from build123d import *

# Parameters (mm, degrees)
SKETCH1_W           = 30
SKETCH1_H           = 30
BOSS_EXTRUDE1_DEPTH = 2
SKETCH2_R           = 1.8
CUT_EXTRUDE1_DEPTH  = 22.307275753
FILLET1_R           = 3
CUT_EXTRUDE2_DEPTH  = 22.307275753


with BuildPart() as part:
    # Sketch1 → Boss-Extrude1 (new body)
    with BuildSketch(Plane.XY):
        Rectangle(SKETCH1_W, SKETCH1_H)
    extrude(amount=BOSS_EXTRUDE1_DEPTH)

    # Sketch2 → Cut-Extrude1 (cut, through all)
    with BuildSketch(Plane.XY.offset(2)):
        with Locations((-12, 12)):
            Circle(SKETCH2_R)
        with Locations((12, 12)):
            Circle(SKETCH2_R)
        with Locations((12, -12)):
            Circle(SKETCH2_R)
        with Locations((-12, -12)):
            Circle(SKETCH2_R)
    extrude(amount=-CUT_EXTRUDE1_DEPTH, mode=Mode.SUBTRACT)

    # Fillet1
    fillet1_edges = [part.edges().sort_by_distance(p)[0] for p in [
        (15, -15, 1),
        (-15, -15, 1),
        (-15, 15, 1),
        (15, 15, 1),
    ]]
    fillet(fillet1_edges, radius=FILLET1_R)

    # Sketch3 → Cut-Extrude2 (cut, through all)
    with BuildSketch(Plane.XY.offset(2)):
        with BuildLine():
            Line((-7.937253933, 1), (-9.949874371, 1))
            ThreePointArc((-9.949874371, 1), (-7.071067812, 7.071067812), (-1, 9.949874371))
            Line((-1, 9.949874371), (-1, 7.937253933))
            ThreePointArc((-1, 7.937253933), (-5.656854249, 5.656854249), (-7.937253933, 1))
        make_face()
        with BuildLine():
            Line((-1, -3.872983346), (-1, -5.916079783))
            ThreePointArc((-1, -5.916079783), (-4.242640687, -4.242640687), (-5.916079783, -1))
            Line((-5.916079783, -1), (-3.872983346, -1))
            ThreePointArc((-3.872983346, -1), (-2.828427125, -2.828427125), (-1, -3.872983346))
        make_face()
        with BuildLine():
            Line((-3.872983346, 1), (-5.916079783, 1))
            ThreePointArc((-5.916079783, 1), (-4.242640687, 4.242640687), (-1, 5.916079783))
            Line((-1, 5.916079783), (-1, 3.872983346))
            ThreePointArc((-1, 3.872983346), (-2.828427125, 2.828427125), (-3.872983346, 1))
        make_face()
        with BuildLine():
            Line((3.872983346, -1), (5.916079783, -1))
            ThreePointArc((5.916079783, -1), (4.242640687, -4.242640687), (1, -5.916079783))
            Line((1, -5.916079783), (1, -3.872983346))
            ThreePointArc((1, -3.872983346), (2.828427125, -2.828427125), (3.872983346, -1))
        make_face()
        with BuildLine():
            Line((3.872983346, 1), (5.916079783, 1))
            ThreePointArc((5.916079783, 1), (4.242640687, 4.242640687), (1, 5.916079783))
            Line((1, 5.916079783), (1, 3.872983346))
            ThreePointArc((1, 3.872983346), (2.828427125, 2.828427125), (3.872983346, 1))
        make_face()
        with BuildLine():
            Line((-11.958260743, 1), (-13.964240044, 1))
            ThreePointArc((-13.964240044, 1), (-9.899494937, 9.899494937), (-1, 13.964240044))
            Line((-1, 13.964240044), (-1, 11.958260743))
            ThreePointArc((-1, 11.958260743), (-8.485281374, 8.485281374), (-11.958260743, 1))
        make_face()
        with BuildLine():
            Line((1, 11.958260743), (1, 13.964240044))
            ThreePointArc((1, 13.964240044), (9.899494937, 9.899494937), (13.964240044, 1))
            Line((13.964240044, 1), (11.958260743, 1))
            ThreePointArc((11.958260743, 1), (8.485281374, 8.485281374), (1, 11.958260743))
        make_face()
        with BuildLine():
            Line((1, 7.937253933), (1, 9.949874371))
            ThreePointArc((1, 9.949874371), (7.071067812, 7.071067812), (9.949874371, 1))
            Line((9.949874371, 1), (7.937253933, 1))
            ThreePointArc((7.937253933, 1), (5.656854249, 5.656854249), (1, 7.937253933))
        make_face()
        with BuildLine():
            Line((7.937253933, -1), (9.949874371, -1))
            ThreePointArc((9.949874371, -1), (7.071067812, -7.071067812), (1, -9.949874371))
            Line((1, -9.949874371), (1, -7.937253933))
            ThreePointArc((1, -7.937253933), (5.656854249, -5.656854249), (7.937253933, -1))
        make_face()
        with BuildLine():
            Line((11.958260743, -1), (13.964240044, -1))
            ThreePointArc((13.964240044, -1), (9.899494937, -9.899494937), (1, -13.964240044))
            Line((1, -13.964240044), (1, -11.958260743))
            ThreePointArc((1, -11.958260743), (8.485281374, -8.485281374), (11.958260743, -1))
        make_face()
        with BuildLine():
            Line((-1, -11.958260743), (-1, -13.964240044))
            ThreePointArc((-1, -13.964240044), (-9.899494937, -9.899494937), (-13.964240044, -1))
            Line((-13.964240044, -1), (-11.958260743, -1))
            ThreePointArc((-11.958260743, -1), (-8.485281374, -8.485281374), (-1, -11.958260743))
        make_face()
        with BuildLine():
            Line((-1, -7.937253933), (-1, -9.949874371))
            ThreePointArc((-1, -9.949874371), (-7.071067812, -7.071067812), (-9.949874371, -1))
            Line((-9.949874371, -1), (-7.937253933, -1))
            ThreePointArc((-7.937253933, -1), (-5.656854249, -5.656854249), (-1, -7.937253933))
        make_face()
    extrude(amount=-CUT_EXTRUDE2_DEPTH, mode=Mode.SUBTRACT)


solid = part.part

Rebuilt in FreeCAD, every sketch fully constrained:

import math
import FreeCAD as App
import Part
import Sketcher
Q = App.Units.Quantity


def edges_at(feature, points):
    """Names of the edges that pass closest to the given points."""
    edges = feature.Shape.Edges
    near = lambda p: min(range(len(edges)), key=lambda i: edges[i].distToShape(Part.Vertex(*p))[0])
    return sorted({f"Edge{near(p) + 1}" for p in points})

doc = App.newDocument("Part")
body = doc.addObject("PartDesign::Body", "Body")

# Sketch on XY plane
sketch1 = body.newObject("Sketcher::SketchObject", "Sketch")
sketch1.AttachmentSupport = (doc.getObject("XY_Plane"), [""])
sketch1.MapMode = "FlatFace"
sketch1.addGeometry(Part.LineSegment(App.Vector(-15, 15, 0), App.Vector(-15, -15, 0)), False)
sketch1.addGeometry(Part.LineSegment(App.Vector(-15, -15, 0), App.Vector(15, -15, 0)), False)
sketch1.addGeometry(Part.LineSegment(App.Vector(15, -15, 0), App.Vector(15, 15, 0)), False)
sketch1.addGeometry(Part.LineSegment(App.Vector(15, 15, 0), App.Vector(-15, 15, 0)), False)
sketch1.addConstraint(Sketcher.Constraint("Coincident", 0, 2, 1, 1))
sketch1.addConstraint(Sketcher.Constraint("Coincident", 1, 2, 2, 1))
sketch1.addConstraint(Sketcher.Constraint("Coincident", 2, 2, 3, 1))
sketch1.addConstraint(Sketcher.Constraint("Coincident", 3, 2, 0, 1))
sketch1.addConstraint(Sketcher.Constraint("Vertical", 0))
sketch1.addConstraint(Sketcher.Constraint("Horizontal", 1))
sketch1.addConstraint(Sketcher.Constraint("Vertical", 2))
sketch1.addConstraint(Sketcher.Constraint("Horizontal", 3))
sketch1.addConstraint(Sketcher.Constraint("Symmetric", 0, 2, 2, 2, -1, 1))
sketch1.addConstraint(Sketcher.Constraint("Equal", 3, 0))
sketch1.addConstraint(Sketcher.Constraint("DistanceX", 1, 1, 1, 2, Q("30 mm")))
pad1 = body.newObject("PartDesign::Pad", "Pad")
pad1.Profile = sketch1
pad1.Length = 2

# Sketch on XY plane
sketch2 = body.newObject("Sketcher::SketchObject", "Sketch001")
sketch2.AttachmentSupport = (doc.getObject("XY_Plane"), [""])
sketch2.MapMode = "FlatFace"
sketch2.AttachmentOffset = App.Placement(App.Vector(0, 0, 2), App.Rotation())
sketch2.addGeometry(Part.Circle(App.Vector(-12, 12, 0), App.Vector(0, 0, 1), 1.8), False)
sketch2.addGeometry(Part.Circle(App.Vector(12, 12, 0), App.Vector(0, 0, 1), 1.8), False)
sketch2.addGeometry(Part.Circle(App.Vector(12, -12, 0), App.Vector(0, 0, 1), 1.8), False)
sketch2.addGeometry(Part.Circle(App.Vector(-12, -12, 0), App.Vector(0, 0, 1), 1.8), False)
sketch2.addConstraint(Sketcher.Constraint("Equal", 0, 1))
sketch2.addConstraint(Sketcher.Constraint("Equal", 1, 2))
sketch2.addConstraint(Sketcher.Constraint("Equal", 2, 3))
sketch2.addConstraint(Sketcher.Constraint("Symmetric", 0, 3, 2, 3, -1, 1))
sketch2.addConstraint(Sketcher.Constraint("Symmetric", 1, 3, 3, 3, -1, 1))
sketch2.addConstraint(Sketcher.Constraint("Symmetric", 0, 3, 1, 3, -2))
sketch2.addConstraint(Sketcher.Constraint("Diameter", 0, Q("3.6 mm")))
sketch2.addConstraint(Sketcher.Constraint("DistanceX", 0, 3, -1, 1, Q("12 mm")))
sketch2.addConstraint(Sketcher.Constraint("DistanceY", -1, 1, 0, 3, Q("12 mm")))
pocket1 = body.newObject("PartDesign::Pocket", "Pocket")
pocket1.Profile = sketch2
pocket1.Type = "ThroughAll"
doc.recompute()

fillet = body.newObject("PartDesign::Fillet", "Fillet")
fillet.Base = (pocket1, edges_at(pocket1, [
    (15, -15, 1),
    (-15, -15, 1),
    (-15, 15, 1),
    (15, 15, 1),
]))
fillet.Radius = 3

# Sketch on XY plane
sketch3 = body.newObject("Sketcher::SketchObject", "Sketch002")
sketch3.AttachmentSupport = (doc.getObject("XY_Plane"), [""])
sketch3.MapMode = "FlatFace"
sketch3.AttachmentOffset = App.Placement(App.Vector(0, 0, 2), App.Rotation())
sketch3.addGeometry(Part.LineSegment(App.Vector(-9.9, 1, 0), App.Vector(-7.9, 1, 0)), False)
sketch3.addGeometry(Part.ArcOfCircle(Part.Circle(App.Vector(0, 0, 0), App.Vector(0, 0, 1), 8), math.radians(97), math.radians(173)), False)
sketch3.addGeometry(Part.LineSegment(App.Vector(-1, 7.9, 0), App.Vector(-1, 9.9, 0)), False)
sketch3.addGeometry(Part.ArcOfCircle(Part.Circle(App.Vector(0, 0, 0), App.Vector(0, 0, 1), 10), math.radians(96), math.radians(174)), False)
sketch3.addGeometry(Part.LineSegment(App.Vector(-1, -5.9, 0), App.Vector(-1, -3.9, 0)), False)
sketch3.addGeometry(Part.ArcOfCircle(Part.Circle(App.Vector(0, 0, 0), App.Vector(0, 0, 1), 4), math.radians(-166), math.radians(-104)), False)
sketch3.addGeometry(Part.LineSegment(App.Vector(-3.9, -1, 0), App.Vector(-5.9, -1, 0)), False)
sketch3.addGeometry(Part.ArcOfCircle(Part.Circle(App.Vector(0, 0, 0), App.Vector(0, 0, 1), 6), math.radians(-170), math.radians(-100)), False)
sketch3.addGeometry(Part.LineSegment(App.Vector(-5.9, 1, 0), App.Vector(-3.9, 1, 0)), False)
sketch3.addGeometry(Part.ArcOfCircle(Part.Circle(App.Vector(0, 0, 0), App.Vector(0, 0, 1), 4), math.radians(104), math.radians(166)), False)
sketch3.addGeometry(Part.LineSegment(App.Vector(-1, 3.9, 0), App.Vector(-1, 5.9, 0)), False)
sketch3.addGeometry(Part.ArcOfCircle(Part.Circle(App.Vector(0, 0, 0), App.Vector(0, 0, 1), 6), math.radians(100), math.radians(170)), False)
sketch3.addGeometry(Part.LineSegment(App.Vector(5.9, -1, 0), App.Vector(3.9, -1, 0)), False)
sketch3.addGeometry(Part.ArcOfCircle(Part.Circle(App.Vector(0, 0, 0), App.Vector(0, 0, 1), 4), math.radians(-76), math.radians(-14)), False)
sketch3.addGeometry(Part.LineSegment(App.Vector(1, -3.9, 0), App.Vector(1, -5.9, 0)), False)
sketch3.addGeometry(Part.ArcOfCircle(Part.Circle(App.Vector(0, 0, 0), App.Vector(0, 0, 1), 6), math.radians(-80), math.radians(-10)), False)
sketch3.addGeometry(Part.LineSegment(App.Vector(3.9, 1, 0), App.Vector(5.9, 1, 0)), False)
sketch3.addGeometry(Part.ArcOfCircle(Part.Circle(App.Vector(0, 0, 0), App.Vector(0, 0, 1), 6), math.radians(10), math.radians(80)), False)
sketch3.addGeometry(Part.LineSegment(App.Vector(1, 5.9, 0), App.Vector(1, 3.9, 0)), False)
sketch3.addGeometry(Part.ArcOfCircle(Part.Circle(App.Vector(0, 0, 0), App.Vector(0, 0, 1), 4), math.radians(14), math.radians(76)), False)
sketch3.addGeometry(Part.LineSegment(App.Vector(-14, 1, 0), App.Vector(-12, 1, 0)), False)
sketch3.addGeometry(Part.ArcOfCircle(Part.Circle(App.Vector(0, 0, 0), App.Vector(0, 0, 1), 12), math.radians(95), math.radians(175)), False)
sketch3.addGeometry(Part.LineSegment(App.Vector(-1, 12, 0), App.Vector(-1, 14, 0)), False)
sketch3.addGeometry(Part.ArcOfCircle(Part.Circle(App.Vector(0, 0, 0), App.Vector(0, 0, 1), 14), math.radians(94), math.radians(176)), False)
sketch3.addGeometry(Part.LineSegment(App.Vector(1, 14, 0), App.Vector(1, 12, 0)), False)
sketch3.addGeometry(Part.ArcOfCircle(Part.Circle(App.Vector(0, 0, 0), App.Vector(0, 0, 1), 12), math.radians(5), math.radians(85)), False)
sketch3.addGeometry(Part.LineSegment(App.Vector(12, 1, 0), App.Vector(14, 1, 0)), False)
sketch3.addGeometry(Part.ArcOfCircle(Part.Circle(App.Vector(0, 0, 0), App.Vector(0, 0, 1), 14), math.radians(4), math.radians(86)), False)
sketch3.addGeometry(Part.LineSegment(App.Vector(1, 9.9, 0), App.Vector(1, 7.9, 0)), False)
sketch3.addGeometry(Part.ArcOfCircle(Part.Circle(App.Vector(0, 0, 0), App.Vector(0, 0, 1), 8), math.radians(7), math.radians(83)), False)
sketch3.addGeometry(Part.LineSegment(App.Vector(7.9, 1, 0), App.Vector(9.9, 1, 0)), False)
sketch3.addGeometry(Part.ArcOfCircle(Part.Circle(App.Vector(0, 0, 0), App.Vector(0, 0, 1), 10), math.radians(6), math.radians(84)), False)
sketch3.addGeometry(Part.LineSegment(App.Vector(9.9, -1, 0), App.Vector(7.9, -1, 0)), False)
sketch3.addGeometry(Part.ArcOfCircle(Part.Circle(App.Vector(0, 0, 0), App.Vector(0, 0, 1), 8), math.radians(-83), math.radians(-7)), False)
sketch3.addGeometry(Part.LineSegment(App.Vector(1, -7.9, 0), App.Vector(1, -9.9, 0)), False)
sketch3.addGeometry(Part.ArcOfCircle(Part.Circle(App.Vector(0, 0, 0), App.Vector(0, 0, 1), 10), math.radians(-84), math.radians(-6)), False)
sketch3.addGeometry(Part.LineSegment(App.Vector(14, -1, 0), App.Vector(12, -1, 0)), False)
sketch3.addGeometry(Part.ArcOfCircle(Part.Circle(App.Vector(0, 0, 0), App.Vector(0, 0, 1), 12), math.radians(-85), math.radians(-5)), False)
sketch3.addGeometry(Part.LineSegment(App.Vector(1, -12, 0), App.Vector(1, -14, 0)), False)
sketch3.addGeometry(Part.ArcOfCircle(Part.Circle(App.Vector(0, 0, 0), App.Vector(0, 0, 1), 14), math.radians(-86), math.radians(-4)), False)
sketch3.addGeometry(Part.LineSegment(App.Vector(-1, -14, 0), App.Vector(-1, -12, 0)), False)
sketch3.addGeometry(Part.ArcOfCircle(Part.Circle(App.Vector(0, 0, 0), App.Vector(0, 0, 1), 12), math.radians(-175), math.radians(-95)), False)
sketch3.addGeometry(Part.LineSegment(App.Vector(-12, -1, 0), App.Vector(-14, -1, 0)), False)
sketch3.addGeometry(Part.ArcOfCircle(Part.Circle(App.Vector(0, 0, 0), App.Vector(0, 0, 1), 14), math.radians(-176), math.radians(-94)), False)
sketch3.addGeometry(Part.LineSegment(App.Vector(-1, -9.9, 0), App.Vector(-1, -7.9, 0)), False)
sketch3.addGeometry(Part.ArcOfCircle(Part.Circle(App.Vector(0, 0, 0), App.Vector(0, 0, 1), 8), math.radians(-173), math.radians(-97)), False)
sketch3.addGeometry(Part.LineSegment(App.Vector(-7.9, -1, 0), App.Vector(-9.9, -1, 0)), False)
sketch3.addGeometry(Part.ArcOfCircle(Part.Circle(App.Vector(0, 0, 0), App.Vector(0, 0, 1), 10), math.radians(-174), math.radians(-96)), False)
sketch3.addConstraint(Sketcher.Constraint("Coincident", 0, 2, 1, 2))
sketch3.addConstraint(Sketcher.Constraint("Coincident", 1, 1, 2, 1))
sketch3.addConstraint(Sketcher.Constraint("Coincident", 2, 2, 3, 1))
sketch3.addConstraint(Sketcher.Constraint("Coincident", 3, 2, 0, 1))
sketch3.addConstraint(Sketcher.Constraint("Coincident", 4, 2, 5, 2))
sketch3.addConstraint(Sketcher.Constraint("Coincident", 5, 1, 6, 1))
sketch3.addConstraint(Sketcher.Constraint("Coincident", 6, 2, 7, 1))
sketch3.addConstraint(Sketcher.Constraint("Coincident", 7, 2, 4, 1))
sketch3.addConstraint(Sketcher.Constraint("Coincident", 8, 2, 9, 2))
sketch3.addConstraint(Sketcher.Constraint("Coincident", 9, 1, 10, 1))
sketch3.addConstraint(Sketcher.Constraint("Coincident", 10, 2, 11, 1))
sketch3.addConstraint(Sketcher.Constraint("Coincident", 11, 2, 8, 1))
sketch3.addConstraint(Sketcher.Constraint("Coincident", 12, 2, 13, 2))
sketch3.addConstraint(Sketcher.Constraint("Coincident", 13, 1, 14, 1))
sketch3.addConstraint(Sketcher.Constraint("Coincident", 14, 2, 15, 1))
sketch3.addConstraint(Sketcher.Constraint("Coincident", 15, 2, 12, 1))
sketch3.addConstraint(Sketcher.Constraint("Coincident", 16, 2, 17, 1))
sketch3.addConstraint(Sketcher.Constraint("Coincident", 17, 2, 18, 1))
sketch3.addConstraint(Sketcher.Constraint("Coincident", 18, 2, 19, 2))
sketch3.addConstraint(Sketcher.Constraint("Coincident", 19, 1, 16, 1))
sketch3.addConstraint(Sketcher.Constraint("Coincident", 20, 2, 21, 2))
sketch3.addConstraint(Sketcher.Constraint("Coincident", 21, 1, 22, 1))
sketch3.addConstraint(Sketcher.Constraint("Coincident", 22, 2, 23, 1))
sketch3.addConstraint(Sketcher.Constraint("Coincident", 23, 2, 20, 1))
sketch3.addConstraint(Sketcher.Constraint("Coincident", 24, 2, 25, 2))
sketch3.addConstraint(Sketcher.Constraint("Coincident", 25, 1, 26, 1))
sketch3.addConstraint(Sketcher.Constraint("Coincident", 26, 2, 27, 1))
sketch3.addConstraint(Sketcher.Constraint("Coincident", 27, 2, 24, 1))
sketch3.addConstraint(Sketcher.Constraint("Coincident", 28, 2, 29, 2))
sketch3.addConstraint(Sketcher.Constraint("Coincident", 29, 1, 30, 1))
sketch3.addConstraint(Sketcher.Constraint("Coincident", 30, 2, 31, 1))
sketch3.addConstraint(Sketcher.Constraint("Coincident", 31, 2, 28, 1))
sketch3.addConstraint(Sketcher.Constraint("Coincident", 32, 2, 33, 2))
sketch3.addConstraint(Sketcher.Constraint("Coincident", 33, 1, 34, 1))
sketch3.addConstraint(Sketcher.Constraint("Coincident", 34, 2, 35, 1))
sketch3.addConstraint(Sketcher.Constraint("Coincident", 35, 2, 32, 1))
sketch3.addConstraint(Sketcher.Constraint("Coincident", 36, 2, 37, 2))
sketch3.addConstraint(Sketcher.Constraint("Coincident", 37, 1, 38, 1))
sketch3.addConstraint(Sketcher.Constraint("Coincident", 38, 2, 39, 1))
sketch3.addConstraint(Sketcher.Constraint("Coincident", 39, 2, 36, 1))
sketch3.addConstraint(Sketcher.Constraint("Coincident", 40, 2, 41, 2))
sketch3.addConstraint(Sketcher.Constraint("Coincident", 41, 1, 42, 1))
sketch3.addConstraint(Sketcher.Constraint("Coincident", 42, 2, 43, 1))
sketch3.addConstraint(Sketcher.Constraint("Coincident", 43, 2, 40, 1))
sketch3.addConstraint(Sketcher.Constraint("Coincident", 44, 2, 45, 2))
sketch3.addConstraint(Sketcher.Constraint("Coincident", 45, 1, 46, 1))
sketch3.addConstraint(Sketcher.Constraint("Coincident", 46, 2, 47, 1))
sketch3.addConstraint(Sketcher.Constraint("Coincident", 47, 2, 44, 1))
sketch3.addConstraint(Sketcher.Constraint("Horizontal", 0))
sketch3.addConstraint(Sketcher.Constraint("Vertical", 2))
sketch3.addConstraint(Sketcher.Constraint("Vertical", 4))
sketch3.addConstraint(Sketcher.Constraint("Horizontal", 6))
sketch3.addConstraint(Sketcher.Constraint("Horizontal", 8))
sketch3.addConstraint(Sketcher.Constraint("Vertical", 10))
sketch3.addConstraint(Sketcher.Constraint("Horizontal", 12))
sketch3.addConstraint(Sketcher.Constraint("Vertical", 14))
sketch3.addConstraint(Sketcher.Constraint("Horizontal", 16))
sketch3.addConstraint(Sketcher.Constraint("Vertical", 18))
sketch3.addConstraint(Sketcher.Constraint("Horizontal", 20))
sketch3.addConstraint(Sketcher.Constraint("Vertical", 22))
sketch3.addConstraint(Sketcher.Constraint("Vertical", 24))
sketch3.addConstraint(Sketcher.Constraint("Horizontal", 26))
sketch3.addConstraint(Sketcher.Constraint("Vertical", 28))
sketch3.addConstraint(Sketcher.Constraint("Horizontal", 30))
sketch3.addConstraint(Sketcher.Constraint("Horizontal", 32))
sketch3.addConstraint(Sketcher.Constraint("Vertical", 34))
sketch3.addConstraint(Sketcher.Constraint("Horizontal", 36))
sketch3.addConstraint(Sketcher.Constraint("Vertical", 38))
sketch3.addConstraint(Sketcher.Constraint("Vertical", 40))
sketch3.addConstraint(Sketcher.Constraint("Horizontal", 42))
sketch3.addConstraint(Sketcher.Constraint("Vertical", 44))
sketch3.addConstraint(Sketcher.Constraint("Horizontal", 46))
sketch3.addConstraint(Sketcher.Constraint("Coincident", 1, 3, -1, 1))
sketch3.addConstraint(Sketcher.Constraint("Coincident", 3, 3, -1, 1))
sketch3.addConstraint(Sketcher.Constraint("Coincident", 5, 3, -1, 1))
sketch3.addConstraint(Sketcher.Constraint("Coincident", 7, 3, -1, 1))
sketch3.addConstraint(Sketcher.Constraint("Coincident", 9, 3, -1, 1))
sketch3.addConstraint(Sketcher.Constraint("Coincident", 11, 3, -1, 1))
sketch3.addConstraint(Sketcher.Constraint("Coincident", 13, 3, -1, 1))
sketch3.addConstraint(Sketcher.Constraint("Coincident", 15, 3, -1, 1))
sketch3.addConstraint(Sketcher.Constraint("Coincident", 17, 3, -1, 1))
sketch3.addConstraint(Sketcher.Constraint("Coincident", 19, 3, -1, 1))
sketch3.addConstraint(Sketcher.Constraint("Coincident", 21, 3, -1, 1))
sketch3.addConstraint(Sketcher.Constraint("Coincident", 23, 3, -1, 1))
sketch3.addConstraint(Sketcher.Constraint("Coincident", 25, 3, -1, 1))
sketch3.addConstraint(Sketcher.Constraint("Coincident", 27, 3, -1, 1))
sketch3.addConstraint(Sketcher.Constraint("Coincident", 29, 3, -1, 1))
sketch3.addConstraint(Sketcher.Constraint("Coincident", 31, 3, -1, 1))
sketch3.addConstraint(Sketcher.Constraint("Coincident", 33, 3, -1, 1))
sketch3.addConstraint(Sketcher.Constraint("Coincident", 35, 3, -1, 1))
sketch3.addConstraint(Sketcher.Constraint("Coincident", 37, 3, -1, 1))
sketch3.addConstraint(Sketcher.Constraint("Coincident", 39, 3, -1, 1))
sketch3.addConstraint(Sketcher.Constraint("Coincident", 41, 3, -1, 1))
sketch3.addConstraint(Sketcher.Constraint("Coincident", 43, 3, -1, 1))
sketch3.addConstraint(Sketcher.Constraint("Coincident", 45, 3, -1, 1))
sketch3.addConstraint(Sketcher.Constraint("Coincident", 47, 3, -1, 1))
sketch3.addConstraint(Sketcher.Constraint("Equal", 5, 9))
sketch3.addConstraint(Sketcher.Constraint("Equal", 7, 11))
sketch3.addConstraint(Sketcher.Constraint("Equal", 9, 13))
sketch3.addConstraint(Sketcher.Constraint("Equal", 11, 15))
sketch3.addConstraint(Sketcher.Constraint("Equal", 15, 17))
sketch3.addConstraint(Sketcher.Constraint("Equal", 13, 19))
sketch3.addConstraint(Sketcher.Constraint("Equal", 21, 25))
sketch3.addConstraint(Sketcher.Constraint("Equal", 23, 27))
sketch3.addConstraint(Sketcher.Constraint("Equal", 1, 29))
sketch3.addConstraint(Sketcher.Constraint("Equal", 3, 31))
sketch3.addConstraint(Sketcher.Constraint("Equal", 29, 33))
sketch3.addConstraint(Sketcher.Constraint("Equal", 31, 35))
sketch3.addConstraint(Sketcher.Constraint("Equal", 25, 37))
sketch3.addConstraint(Sketcher.Constraint("Equal", 27, 39))
sketch3.addConstraint(Sketcher.Constraint("Equal", 37, 41))
sketch3.addConstraint(Sketcher.Constraint("Equal", 39, 43))
sketch3.addConstraint(Sketcher.Constraint("Equal", 33, 45))
sketch3.addConstraint(Sketcher.Constraint("Equal", 35, 47))
sketch3.addConstraint(Sketcher.Constraint("Horizontal", 3, 2, 8, 2))
sketch3.addConstraint(Sketcher.Constraint("Horizontal", 6, 2, 12, 2))
sketch3.addConstraint(Sketcher.Constraint("Horizontal", 4, 2, 13, 1))
sketch3.addConstraint(Sketcher.Constraint("Horizontal", 11, 2, 16, 2))
sketch3.addConstraint(Sketcher.Constraint("Horizontal", 10, 2, 17, 2))
sketch3.addConstraint(Sketcher.Constraint("Horizontal", 19, 1, 20, 2))
sketch3.addConstraint(Sketcher.Constraint("Horizontal", 21, 1, 24, 2))
sketch3.addConstraint(Sketcher.Constraint("Horizontal", 23, 2, 25, 1))
sketch3.addConstraint(Sketcher.Constraint("Horizontal", 1, 1, 28, 2))
sketch3.addConstraint(Sketcher.Constraint("Horizontal", 26, 2, 29, 1))
sketch3.addConstraint(Sketcher.Constraint("Horizontal", 15, 2, 32, 2))
sketch3.addConstraint(Sketcher.Constraint("Horizontal", 35, 2, 36, 2))
sketch3.addConstraint(Sketcher.Constraint("Horizontal", 37, 1, 40, 2))
sketch3.addConstraint(Sketcher.Constraint("Horizontal", 39, 2, 41, 1))
sketch3.addConstraint(Sketcher.Constraint("Horizontal", 33, 1, 44, 2))
sketch3.addConstraint(Sketcher.Constraint("Horizontal", 42, 2, 45, 1))
sketch3.addConstraint(Sketcher.Constraint("Vertical", 2, 2, 4, 2))
sketch3.addConstraint(Sketcher.Constraint("Vertical", 5, 1, 8, 2))
sketch3.addConstraint(Sketcher.Constraint("Vertical", 7, 2, 9, 1))
sketch3.addConstraint(Sketcher.Constraint("Vertical", 10, 2, 21, 1))
sketch3.addConstraint(Sketcher.Constraint("Vertical", 31, 2, 33, 1))
sketch3.addConstraint(Sketcher.Constraint("Vertical", 34, 2, 37, 1))
sketch3.addConstraint(Sketcher.Constraint("Equal", 46, 2))
sketch3.addConstraint(Sketcher.Constraint("Radius", 1, Q("8 mm")))
sketch3.addConstraint(Sketcher.Constraint("Radius", 3, Q("10 mm")))
sketch3.addConstraint(Sketcher.Constraint("Radius", 5, Q("4 mm")))
sketch3.addConstraint(Sketcher.Constraint("Radius", 7, Q("6 mm")))
sketch3.addConstraint(Sketcher.Constraint("Radius", 21, Q("12 mm")))
sketch3.addConstraint(Sketcher.Constraint("Radius", 23, Q("14 mm")))
sketch3.addConstraint(Sketcher.Constraint("DistanceY", -1, 1, 0, 2, Q("1 mm")))
pocket2 = body.newObject("PartDesign::Pocket", "Pocket001")
pocket2.Profile = sketch3
pocket2.Type = "ThroughAll"

doc.recompute()
